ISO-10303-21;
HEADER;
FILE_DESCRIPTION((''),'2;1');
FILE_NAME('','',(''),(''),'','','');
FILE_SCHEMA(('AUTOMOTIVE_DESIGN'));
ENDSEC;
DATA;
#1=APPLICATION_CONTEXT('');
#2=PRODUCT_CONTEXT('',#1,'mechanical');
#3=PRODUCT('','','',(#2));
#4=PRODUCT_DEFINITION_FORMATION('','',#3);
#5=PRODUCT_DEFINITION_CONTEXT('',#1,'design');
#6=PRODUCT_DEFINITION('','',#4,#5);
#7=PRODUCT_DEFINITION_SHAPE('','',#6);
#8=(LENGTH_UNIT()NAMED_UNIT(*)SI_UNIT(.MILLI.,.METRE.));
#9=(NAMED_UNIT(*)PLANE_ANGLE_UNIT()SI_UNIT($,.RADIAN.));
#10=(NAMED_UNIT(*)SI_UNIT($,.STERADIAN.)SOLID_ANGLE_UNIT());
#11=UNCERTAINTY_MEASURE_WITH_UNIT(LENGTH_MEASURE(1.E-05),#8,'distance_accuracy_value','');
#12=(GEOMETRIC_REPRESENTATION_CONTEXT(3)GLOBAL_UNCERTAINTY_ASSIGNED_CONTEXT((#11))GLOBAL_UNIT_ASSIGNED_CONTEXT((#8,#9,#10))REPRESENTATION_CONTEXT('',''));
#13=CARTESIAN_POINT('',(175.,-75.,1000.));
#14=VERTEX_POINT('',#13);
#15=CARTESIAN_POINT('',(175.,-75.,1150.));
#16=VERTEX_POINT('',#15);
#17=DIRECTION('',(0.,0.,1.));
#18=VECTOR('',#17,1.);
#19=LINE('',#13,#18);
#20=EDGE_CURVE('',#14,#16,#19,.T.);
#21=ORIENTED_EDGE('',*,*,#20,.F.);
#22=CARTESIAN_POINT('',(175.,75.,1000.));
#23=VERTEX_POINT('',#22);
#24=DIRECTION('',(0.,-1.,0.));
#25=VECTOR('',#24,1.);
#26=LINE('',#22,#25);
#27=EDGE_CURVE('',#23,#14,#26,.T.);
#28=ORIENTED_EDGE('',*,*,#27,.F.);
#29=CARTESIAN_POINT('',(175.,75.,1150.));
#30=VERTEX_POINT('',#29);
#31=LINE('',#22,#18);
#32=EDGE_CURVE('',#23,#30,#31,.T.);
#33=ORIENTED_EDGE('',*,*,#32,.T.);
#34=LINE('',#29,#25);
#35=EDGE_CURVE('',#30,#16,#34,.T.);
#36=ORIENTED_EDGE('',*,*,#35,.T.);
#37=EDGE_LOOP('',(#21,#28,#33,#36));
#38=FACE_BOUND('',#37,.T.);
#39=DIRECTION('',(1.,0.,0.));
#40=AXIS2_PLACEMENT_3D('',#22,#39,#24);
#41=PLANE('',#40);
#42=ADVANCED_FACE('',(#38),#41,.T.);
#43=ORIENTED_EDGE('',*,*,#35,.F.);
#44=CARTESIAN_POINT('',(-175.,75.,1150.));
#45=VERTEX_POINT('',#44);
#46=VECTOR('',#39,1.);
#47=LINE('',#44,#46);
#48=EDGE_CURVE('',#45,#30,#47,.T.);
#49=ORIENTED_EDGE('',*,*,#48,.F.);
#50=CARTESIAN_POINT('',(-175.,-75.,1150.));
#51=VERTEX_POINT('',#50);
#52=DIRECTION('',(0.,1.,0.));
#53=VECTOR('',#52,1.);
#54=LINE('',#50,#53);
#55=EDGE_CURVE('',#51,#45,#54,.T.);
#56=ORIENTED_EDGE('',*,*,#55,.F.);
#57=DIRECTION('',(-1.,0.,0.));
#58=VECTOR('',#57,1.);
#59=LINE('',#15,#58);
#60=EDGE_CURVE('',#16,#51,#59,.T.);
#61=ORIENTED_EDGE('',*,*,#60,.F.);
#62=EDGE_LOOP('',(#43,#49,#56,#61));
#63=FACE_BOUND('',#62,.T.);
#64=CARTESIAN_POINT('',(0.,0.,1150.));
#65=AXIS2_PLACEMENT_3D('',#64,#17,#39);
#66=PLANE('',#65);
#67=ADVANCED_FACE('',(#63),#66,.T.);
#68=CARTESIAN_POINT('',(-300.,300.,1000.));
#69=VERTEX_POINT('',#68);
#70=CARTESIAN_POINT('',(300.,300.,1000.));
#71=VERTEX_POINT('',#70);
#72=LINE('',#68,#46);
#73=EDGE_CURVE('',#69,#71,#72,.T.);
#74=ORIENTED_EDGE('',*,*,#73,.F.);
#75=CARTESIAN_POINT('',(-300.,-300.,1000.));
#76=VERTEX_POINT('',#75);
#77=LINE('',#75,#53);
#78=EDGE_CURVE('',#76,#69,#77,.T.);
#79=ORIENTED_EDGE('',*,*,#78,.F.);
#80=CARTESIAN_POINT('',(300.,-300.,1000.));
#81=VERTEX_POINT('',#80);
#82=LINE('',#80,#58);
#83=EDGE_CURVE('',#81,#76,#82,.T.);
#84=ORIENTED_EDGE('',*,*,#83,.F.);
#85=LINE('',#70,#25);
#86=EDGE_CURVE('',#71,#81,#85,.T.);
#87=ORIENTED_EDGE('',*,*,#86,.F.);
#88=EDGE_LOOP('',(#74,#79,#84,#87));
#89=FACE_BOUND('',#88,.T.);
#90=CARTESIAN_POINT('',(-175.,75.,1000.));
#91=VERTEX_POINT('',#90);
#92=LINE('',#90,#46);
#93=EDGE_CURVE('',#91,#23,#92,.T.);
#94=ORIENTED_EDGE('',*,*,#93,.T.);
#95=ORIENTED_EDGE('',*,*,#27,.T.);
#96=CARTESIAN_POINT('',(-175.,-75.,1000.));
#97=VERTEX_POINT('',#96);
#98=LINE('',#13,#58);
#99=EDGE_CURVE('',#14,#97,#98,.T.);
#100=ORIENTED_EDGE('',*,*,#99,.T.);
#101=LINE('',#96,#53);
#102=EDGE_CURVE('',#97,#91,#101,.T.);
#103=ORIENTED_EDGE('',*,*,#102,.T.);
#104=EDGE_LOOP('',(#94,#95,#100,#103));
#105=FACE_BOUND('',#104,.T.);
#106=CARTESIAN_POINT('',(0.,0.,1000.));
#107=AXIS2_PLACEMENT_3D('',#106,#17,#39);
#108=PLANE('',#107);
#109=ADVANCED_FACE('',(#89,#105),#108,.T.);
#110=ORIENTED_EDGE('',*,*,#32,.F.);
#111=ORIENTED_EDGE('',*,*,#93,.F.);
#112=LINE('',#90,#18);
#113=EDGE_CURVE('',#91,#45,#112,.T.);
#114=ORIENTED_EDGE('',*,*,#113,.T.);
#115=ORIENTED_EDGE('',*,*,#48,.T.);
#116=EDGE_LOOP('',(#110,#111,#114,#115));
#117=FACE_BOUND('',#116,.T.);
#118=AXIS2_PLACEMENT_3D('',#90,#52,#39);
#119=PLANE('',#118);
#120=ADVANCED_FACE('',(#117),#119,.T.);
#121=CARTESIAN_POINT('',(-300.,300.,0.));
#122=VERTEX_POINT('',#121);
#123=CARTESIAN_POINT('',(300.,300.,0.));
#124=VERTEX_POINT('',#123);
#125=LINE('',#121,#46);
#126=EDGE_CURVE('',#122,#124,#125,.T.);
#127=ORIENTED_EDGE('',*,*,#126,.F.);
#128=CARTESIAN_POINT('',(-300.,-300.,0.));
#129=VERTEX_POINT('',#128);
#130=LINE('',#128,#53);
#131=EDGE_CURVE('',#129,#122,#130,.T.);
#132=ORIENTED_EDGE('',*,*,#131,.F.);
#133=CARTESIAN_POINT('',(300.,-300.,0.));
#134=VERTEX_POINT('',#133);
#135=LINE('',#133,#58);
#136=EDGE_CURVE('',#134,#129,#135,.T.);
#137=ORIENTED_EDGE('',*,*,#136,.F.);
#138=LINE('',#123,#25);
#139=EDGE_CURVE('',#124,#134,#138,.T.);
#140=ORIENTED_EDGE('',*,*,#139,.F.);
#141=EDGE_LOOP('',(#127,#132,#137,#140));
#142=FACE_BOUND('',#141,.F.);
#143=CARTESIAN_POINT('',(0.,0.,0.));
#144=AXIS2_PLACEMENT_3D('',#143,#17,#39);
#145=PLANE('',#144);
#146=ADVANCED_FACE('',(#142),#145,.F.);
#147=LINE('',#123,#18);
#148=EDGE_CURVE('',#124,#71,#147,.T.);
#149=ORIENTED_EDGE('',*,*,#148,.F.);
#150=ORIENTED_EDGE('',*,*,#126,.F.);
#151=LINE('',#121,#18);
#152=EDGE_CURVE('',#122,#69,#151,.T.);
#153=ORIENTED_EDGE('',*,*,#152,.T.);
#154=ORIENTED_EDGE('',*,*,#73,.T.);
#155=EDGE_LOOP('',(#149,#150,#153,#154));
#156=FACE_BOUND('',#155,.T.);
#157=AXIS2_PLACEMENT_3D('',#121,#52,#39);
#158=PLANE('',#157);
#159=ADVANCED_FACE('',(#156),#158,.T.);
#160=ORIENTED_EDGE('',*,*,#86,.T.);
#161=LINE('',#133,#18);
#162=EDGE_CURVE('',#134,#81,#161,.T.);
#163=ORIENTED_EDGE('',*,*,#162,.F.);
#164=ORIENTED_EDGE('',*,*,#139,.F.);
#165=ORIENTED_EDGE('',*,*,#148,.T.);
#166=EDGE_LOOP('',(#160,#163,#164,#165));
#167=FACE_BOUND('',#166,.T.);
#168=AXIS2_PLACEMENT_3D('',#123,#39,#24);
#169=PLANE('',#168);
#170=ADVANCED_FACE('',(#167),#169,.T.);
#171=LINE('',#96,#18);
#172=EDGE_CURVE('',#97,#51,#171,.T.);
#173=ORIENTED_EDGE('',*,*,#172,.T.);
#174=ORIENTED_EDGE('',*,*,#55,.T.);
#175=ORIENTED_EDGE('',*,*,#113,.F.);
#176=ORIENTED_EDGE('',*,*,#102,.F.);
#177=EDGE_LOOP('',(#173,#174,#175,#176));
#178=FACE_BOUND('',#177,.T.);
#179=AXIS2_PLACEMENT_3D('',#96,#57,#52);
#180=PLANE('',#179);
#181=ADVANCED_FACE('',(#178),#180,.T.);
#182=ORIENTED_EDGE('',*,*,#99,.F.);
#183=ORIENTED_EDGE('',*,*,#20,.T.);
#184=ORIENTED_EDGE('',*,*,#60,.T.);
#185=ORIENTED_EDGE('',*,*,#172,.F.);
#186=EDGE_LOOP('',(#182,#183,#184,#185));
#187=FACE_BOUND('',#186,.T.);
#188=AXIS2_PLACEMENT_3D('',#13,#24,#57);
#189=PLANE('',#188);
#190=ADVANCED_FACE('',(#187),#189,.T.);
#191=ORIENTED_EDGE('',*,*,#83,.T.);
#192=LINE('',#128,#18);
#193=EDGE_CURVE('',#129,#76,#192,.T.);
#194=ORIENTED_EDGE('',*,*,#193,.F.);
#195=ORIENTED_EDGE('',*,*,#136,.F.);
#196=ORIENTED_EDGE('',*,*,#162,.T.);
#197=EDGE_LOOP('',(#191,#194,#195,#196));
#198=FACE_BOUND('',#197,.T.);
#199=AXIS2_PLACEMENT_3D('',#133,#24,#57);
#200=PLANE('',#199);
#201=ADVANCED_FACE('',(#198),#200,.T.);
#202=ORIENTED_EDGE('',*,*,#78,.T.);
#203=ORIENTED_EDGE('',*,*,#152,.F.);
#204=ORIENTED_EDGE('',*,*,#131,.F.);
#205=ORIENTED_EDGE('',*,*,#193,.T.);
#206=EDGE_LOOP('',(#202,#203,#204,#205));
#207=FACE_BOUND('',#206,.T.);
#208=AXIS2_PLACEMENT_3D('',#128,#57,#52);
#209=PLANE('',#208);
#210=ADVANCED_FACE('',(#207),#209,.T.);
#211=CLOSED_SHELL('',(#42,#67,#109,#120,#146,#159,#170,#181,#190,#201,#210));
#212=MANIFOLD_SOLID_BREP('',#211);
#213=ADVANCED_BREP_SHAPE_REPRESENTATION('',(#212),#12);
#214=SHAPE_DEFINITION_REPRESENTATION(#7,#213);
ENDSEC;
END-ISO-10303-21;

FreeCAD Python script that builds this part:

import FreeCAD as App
import Part
import Sketcher
from FreeCAD import Vector
Q = App.Units.Quantity


def add_polygon(sketch, points):
    """Adds a closed chain of lines whose ends are joined by coincident constraints."""
    first, n = sketch.GeometryCount, len(points)
    for a, b in zip(points, points[1:] + points[:1]):
        sketch.addGeometry(Part.LineSegment(App.Vector(*a, 0), App.Vector(*b, 0)), False)
    for i in range(n):
        sketch.addConstraint(Sketcher.Constraint("Coincident", first + i, 2, first + (i + 1) % n, 1))

doc = App.newDocument("Part")
body = doc.addObject("PartDesign::Body", "Body")

# Sketch on XY plane
sketch1 = doc.addObject("Sketcher::SketchObject", "Sketch")
body.addObject(sketch1)
sketch1.AttachmentSupport = (doc.XY_Plane, [""])
sketch1.MapMode = "FlatFace"
add_polygon(sketch1, [(300, 300), (-300, 300), (-300, -300), (300, -300)])  # lines 0-3
sketch1.addConstraint([
    Sketcher.Constraint("Horizontal", 0),
    Sketcher.Constraint("Vertical", 1),
    Sketcher.Constraint("Horizontal", 2),
    Sketcher.Constraint("Vertical", 3),
    Sketcher.Constraint("Symmetric", 0, 2, 2, 2, -1, 1),
    Sketcher.Constraint("Equal", 2, 1),
    Sketcher.Constraint("DistanceX", 0, 2, 0, 1, Q("600 mm")),
])
pad1 = doc.addObject("PartDesign::Pad", "Pad")
body.addObject(pad1)
pad1.Profile = sketch1
pad1.Length = 1000

# Sketch on XY plane
sketch2 = doc.addObject("Sketcher::SketchObject", "Sketch001")
body.addObject(sketch2)
sketch2.AttachmentSupport = (doc.XY_Plane, [""])
sketch2.MapMode = "FlatFace"
sketch2.AttachmentOffset = App.Placement(Vector(0, 0, 1000), App.Rotation())
add_polygon(sketch2, [(175, 75), (-175, 75), (-175, -75), (175, -75)])  # lines 0-3
sketch2.addConstraint([
    Sketcher.Constraint("Horizontal", 0),
    Sketcher.Constraint("Vertical", 1),
    Sketcher.Constraint("Horizontal", 2),
    Sketcher.Constraint("Vertical", 3),
    Sketcher.Constraint("Symmetric", 0, 2, 2, 2, -1, 1),
    Sketcher.Constraint("DistanceX", 0, 2, 0, 1, Q("350 mm")),
    Sketcher.Constraint("DistanceY", 1, 2, 1, 1, Q("150 mm")),
])
pad2 = doc.addObject("PartDesign::Pad", "Pad001")
body.addObject(pad2)
pad2.Profile = sketch2
pad2.Length = 150

doc.recompute()
